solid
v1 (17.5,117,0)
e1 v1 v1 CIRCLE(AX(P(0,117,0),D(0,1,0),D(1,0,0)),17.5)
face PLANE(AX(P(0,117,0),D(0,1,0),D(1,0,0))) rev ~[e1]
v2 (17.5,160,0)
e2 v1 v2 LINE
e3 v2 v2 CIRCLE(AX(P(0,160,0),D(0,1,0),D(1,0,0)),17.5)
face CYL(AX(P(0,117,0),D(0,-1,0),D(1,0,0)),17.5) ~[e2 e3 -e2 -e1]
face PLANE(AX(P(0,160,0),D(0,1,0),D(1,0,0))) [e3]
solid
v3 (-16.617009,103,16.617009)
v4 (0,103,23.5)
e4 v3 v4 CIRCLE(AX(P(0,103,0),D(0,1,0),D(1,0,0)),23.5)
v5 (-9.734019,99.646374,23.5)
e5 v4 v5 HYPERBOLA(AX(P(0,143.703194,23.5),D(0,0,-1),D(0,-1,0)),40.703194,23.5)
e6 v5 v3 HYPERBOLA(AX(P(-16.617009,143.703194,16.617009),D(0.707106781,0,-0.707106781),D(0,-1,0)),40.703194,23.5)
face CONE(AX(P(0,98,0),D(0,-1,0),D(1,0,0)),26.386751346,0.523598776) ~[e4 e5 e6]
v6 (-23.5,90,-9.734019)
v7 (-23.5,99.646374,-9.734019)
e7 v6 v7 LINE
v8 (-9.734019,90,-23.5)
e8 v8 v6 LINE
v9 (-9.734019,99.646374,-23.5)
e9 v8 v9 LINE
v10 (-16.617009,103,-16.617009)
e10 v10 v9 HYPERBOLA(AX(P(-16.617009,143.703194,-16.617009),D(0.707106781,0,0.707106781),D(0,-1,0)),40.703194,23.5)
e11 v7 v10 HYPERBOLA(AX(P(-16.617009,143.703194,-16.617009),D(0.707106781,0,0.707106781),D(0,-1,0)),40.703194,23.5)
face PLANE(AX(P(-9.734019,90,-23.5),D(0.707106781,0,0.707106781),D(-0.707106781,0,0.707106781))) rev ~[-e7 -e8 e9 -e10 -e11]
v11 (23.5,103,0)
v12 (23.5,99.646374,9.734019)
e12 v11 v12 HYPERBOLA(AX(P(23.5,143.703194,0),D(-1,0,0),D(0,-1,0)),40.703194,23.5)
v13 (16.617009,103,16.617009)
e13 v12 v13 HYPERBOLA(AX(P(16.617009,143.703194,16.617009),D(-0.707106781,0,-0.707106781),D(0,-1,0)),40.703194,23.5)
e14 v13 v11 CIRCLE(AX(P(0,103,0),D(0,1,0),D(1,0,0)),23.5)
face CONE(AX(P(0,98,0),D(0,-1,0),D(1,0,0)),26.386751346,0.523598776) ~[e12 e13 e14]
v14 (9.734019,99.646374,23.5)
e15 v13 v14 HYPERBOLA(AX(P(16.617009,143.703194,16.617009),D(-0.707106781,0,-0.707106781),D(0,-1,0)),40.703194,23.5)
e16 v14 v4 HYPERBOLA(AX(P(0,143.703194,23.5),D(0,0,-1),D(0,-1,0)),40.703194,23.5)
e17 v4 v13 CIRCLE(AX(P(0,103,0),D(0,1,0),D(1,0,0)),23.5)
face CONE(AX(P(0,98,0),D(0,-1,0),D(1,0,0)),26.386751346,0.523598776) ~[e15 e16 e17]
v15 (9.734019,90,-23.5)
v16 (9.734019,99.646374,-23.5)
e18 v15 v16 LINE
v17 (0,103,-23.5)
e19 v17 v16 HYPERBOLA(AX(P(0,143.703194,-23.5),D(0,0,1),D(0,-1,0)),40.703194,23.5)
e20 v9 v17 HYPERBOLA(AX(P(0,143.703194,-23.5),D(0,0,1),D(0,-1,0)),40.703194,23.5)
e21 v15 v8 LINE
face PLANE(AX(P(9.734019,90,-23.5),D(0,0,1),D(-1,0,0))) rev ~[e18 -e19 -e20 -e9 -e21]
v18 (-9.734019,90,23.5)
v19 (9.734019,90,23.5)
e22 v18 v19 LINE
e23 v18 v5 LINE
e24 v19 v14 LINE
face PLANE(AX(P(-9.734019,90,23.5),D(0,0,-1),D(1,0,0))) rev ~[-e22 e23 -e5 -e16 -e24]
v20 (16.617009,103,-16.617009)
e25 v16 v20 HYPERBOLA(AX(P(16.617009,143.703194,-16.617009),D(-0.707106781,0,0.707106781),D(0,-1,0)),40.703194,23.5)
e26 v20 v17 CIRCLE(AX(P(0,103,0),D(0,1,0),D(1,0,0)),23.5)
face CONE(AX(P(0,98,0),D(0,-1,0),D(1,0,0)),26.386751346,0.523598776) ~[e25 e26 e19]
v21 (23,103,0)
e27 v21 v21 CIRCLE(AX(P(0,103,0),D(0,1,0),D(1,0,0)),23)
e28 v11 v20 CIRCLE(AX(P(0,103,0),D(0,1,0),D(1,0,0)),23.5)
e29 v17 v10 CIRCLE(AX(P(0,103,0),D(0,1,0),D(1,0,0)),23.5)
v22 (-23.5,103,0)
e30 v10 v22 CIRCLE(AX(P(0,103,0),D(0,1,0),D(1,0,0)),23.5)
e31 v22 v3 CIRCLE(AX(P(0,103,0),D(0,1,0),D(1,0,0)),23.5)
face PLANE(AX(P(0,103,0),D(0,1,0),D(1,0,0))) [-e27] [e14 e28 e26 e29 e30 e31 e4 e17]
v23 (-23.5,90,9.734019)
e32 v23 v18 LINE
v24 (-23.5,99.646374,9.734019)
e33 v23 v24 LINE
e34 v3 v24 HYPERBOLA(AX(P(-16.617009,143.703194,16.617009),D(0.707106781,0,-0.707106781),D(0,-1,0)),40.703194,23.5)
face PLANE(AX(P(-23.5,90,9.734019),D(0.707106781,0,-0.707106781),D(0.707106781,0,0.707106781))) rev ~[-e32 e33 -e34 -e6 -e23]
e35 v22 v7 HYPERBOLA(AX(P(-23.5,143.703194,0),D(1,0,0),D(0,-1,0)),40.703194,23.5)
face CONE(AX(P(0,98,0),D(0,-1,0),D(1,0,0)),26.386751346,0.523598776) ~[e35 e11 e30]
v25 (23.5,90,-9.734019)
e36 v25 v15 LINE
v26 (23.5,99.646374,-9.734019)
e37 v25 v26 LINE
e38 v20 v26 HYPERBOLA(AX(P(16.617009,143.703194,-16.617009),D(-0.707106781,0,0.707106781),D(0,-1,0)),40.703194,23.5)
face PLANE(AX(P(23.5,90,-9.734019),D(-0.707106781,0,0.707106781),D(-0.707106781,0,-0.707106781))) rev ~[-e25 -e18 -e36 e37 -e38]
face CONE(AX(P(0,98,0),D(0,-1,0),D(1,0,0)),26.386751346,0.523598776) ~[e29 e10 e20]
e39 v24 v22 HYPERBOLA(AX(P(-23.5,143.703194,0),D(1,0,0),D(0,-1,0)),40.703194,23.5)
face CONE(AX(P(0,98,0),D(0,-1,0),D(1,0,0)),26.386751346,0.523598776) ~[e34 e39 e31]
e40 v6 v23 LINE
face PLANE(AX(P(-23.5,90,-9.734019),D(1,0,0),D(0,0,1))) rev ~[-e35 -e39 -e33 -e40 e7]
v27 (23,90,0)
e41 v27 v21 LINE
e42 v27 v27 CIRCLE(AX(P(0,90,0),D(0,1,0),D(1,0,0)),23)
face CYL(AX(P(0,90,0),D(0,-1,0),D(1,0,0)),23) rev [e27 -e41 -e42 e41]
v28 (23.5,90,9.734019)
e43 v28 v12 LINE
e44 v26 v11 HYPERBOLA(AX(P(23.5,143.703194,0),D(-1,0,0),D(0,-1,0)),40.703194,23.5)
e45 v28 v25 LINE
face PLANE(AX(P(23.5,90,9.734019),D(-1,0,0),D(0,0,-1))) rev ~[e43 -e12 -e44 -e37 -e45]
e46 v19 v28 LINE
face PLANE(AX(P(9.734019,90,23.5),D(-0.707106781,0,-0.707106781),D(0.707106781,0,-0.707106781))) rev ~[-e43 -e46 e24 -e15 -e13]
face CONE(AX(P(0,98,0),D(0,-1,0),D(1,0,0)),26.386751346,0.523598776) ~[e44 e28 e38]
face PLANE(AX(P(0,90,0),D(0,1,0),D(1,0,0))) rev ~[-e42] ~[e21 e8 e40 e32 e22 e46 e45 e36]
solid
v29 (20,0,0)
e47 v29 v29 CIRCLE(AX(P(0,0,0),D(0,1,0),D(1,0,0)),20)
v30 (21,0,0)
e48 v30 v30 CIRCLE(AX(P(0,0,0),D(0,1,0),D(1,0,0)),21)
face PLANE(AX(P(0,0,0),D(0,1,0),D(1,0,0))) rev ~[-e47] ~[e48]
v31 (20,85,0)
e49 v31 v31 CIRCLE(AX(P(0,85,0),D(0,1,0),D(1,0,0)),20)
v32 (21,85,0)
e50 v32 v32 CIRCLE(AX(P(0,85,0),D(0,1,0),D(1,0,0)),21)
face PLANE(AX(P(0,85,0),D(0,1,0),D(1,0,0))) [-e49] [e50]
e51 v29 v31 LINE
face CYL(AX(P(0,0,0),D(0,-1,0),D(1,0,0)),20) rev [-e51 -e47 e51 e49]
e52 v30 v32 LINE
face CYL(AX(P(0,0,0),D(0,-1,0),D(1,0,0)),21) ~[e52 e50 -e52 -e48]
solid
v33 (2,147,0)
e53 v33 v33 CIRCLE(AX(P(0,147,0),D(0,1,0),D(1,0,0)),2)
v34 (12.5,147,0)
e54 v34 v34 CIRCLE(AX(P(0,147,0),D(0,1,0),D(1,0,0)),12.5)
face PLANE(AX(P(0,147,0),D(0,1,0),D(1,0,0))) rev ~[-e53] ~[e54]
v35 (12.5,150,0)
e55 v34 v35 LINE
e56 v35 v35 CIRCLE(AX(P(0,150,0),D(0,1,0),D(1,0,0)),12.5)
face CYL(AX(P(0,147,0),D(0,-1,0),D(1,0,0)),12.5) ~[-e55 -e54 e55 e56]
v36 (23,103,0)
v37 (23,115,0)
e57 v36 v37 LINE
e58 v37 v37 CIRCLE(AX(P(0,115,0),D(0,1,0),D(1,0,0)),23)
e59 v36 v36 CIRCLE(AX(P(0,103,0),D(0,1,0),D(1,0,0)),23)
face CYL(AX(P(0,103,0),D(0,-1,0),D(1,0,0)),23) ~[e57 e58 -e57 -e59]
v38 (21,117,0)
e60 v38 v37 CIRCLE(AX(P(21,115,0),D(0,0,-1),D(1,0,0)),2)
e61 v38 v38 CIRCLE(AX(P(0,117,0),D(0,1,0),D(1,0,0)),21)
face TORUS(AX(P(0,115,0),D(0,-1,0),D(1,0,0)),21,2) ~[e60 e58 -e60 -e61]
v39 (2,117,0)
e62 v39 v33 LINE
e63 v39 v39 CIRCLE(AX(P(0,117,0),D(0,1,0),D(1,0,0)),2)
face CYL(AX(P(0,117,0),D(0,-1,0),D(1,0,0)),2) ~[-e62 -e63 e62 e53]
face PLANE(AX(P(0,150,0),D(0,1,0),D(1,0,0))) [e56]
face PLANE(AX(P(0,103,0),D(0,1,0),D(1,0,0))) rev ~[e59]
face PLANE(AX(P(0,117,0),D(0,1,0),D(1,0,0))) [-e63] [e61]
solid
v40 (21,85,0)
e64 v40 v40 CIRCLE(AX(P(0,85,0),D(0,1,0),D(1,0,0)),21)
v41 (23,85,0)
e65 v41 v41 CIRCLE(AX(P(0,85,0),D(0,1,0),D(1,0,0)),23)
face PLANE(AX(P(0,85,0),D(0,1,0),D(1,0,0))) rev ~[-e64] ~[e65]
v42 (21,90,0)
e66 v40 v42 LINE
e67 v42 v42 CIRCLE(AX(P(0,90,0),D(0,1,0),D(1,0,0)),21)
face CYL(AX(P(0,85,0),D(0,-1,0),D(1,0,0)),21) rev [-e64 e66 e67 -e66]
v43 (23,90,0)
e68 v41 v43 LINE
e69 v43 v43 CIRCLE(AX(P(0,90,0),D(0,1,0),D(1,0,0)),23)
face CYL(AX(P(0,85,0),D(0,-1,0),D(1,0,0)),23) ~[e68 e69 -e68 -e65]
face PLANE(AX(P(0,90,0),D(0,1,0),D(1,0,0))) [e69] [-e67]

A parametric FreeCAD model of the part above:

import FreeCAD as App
import Part
import Sketcher
from FreeCAD import Vector
Q = App.Units.Quantity


def edges_at(feature, points):
    """Names of the edges that pass closest to the given points."""
    edges = feature.Shape.Edges
    near = lambda p: min(range(len(edges)), key=lambda i: edges[i].distToShape(Part.Vertex(*p))[0])
    return sorted({f"Edge{near(p) + 1}" for p in points})

doc = App.newDocument("Part")
body = doc.addObject("PartDesign::Body", "Body")

# Sketch on XZ plane
sketch1 = body.newObject("Sketcher::SketchObject", "Sketch")
sketch1.AttachmentSupport = (doc.getObject("XZ_Plane"), [""])
sketch1.MapMode = "FlatFace"
sketch1.addGeometry(Part.Circle(Vector(0, 0, 0), Vector(0, 0, 1), 21), False)
sketch1.addGeometry(Part.Circle(Vector(0, 0, 0), Vector(0, 0, 1), 20), False)
sketch1.addConstraint(Sketcher.Constraint("Coincident", 0, 3, -1, 1))
sketch1.addConstraint(Sketcher.Constraint("Coincident", 1, 3, -1, 1))
sketch1.addConstraint(Sketcher.Constraint("Diameter", 0, 42.0))
sketch1.addConstraint(Sketcher.Constraint("Diameter", 1, 40.0))
pad1 = body.newObject("PartDesign::Pad", "Pad")
pad1.Profile = sketch1
pad1.Length = 85
pad1.Reversed = True
body2 = doc.addObject("PartDesign::Body", "Body001")

# Sketch on XZ plane
sketch2 = body2.newObject("Sketcher::SketchObject", "Sketch001")
sketch2.AttachmentSupport = (doc.getObject("XZ_Plane001"), [""])
sketch2.MapMode = "FlatFace"
sketch2.AttachmentOffset = App.Placement(Vector(0, 0, -85), App.Rotation())
sketch2.addGeometry(Part.Circle(Vector(0, 0, 0), Vector(0, 0, 1), 23), False)
sketch2.addGeometry(Part.Circle(Vector(0, 0, 0), Vector(0, 0, 1), 21), False)
sketch2.addConstraint(Sketcher.Constraint("Coincident", 0, 3, -1, 1))
sketch2.addConstraint(Sketcher.Constraint("Coincident", 1, 3, -1, 1))
sketch2.addConstraint(Sketcher.Constraint("Diameter", 0, 46.0))
sketch2.addConstraint(Sketcher.Constraint("Diameter", 1, 42.0))
pad2 = body2.newObject("PartDesign::Pad", "Pad001")
pad2.Profile = sketch2
pad2.Length = 5
pad2.Reversed = True
body3 = doc.addObject("PartDesign::Body", "Body002")

# Sketch on XZ plane
sketch3 = body3.newObject("Sketcher::SketchObject", "Sketch002")
sketch3.AttachmentSupport = (doc.getObject("XZ_Plane002"), [""])
sketch3.MapMode = "FlatFace"
sketch3.AttachmentOffset = App.Placement(Vector(0, 0, -90), App.Rotation())
sketch3.addGeometry(Part.LineSegment(Vector(-24, 10, 0), Vector(-10, 24, 0)), False)
sketch3.addGeometry(Part.LineSegment(Vector(-10, 24, 0), Vector(10, 24, 0)), False)
sketch3.addGeometry(Part.LineSegment(Vector(10, 24, 0), Vector(24, 10, 0)), False)
sketch3.addGeometry(Part.LineSegment(Vector(24, 10, 0), Vector(24, -10, 0)), False)
sketch3.addGeometry(Part.LineSegment(Vector(24, -10, 0), Vector(10, -24, 0)), False)
sketch3.addGeometry(Part.LineSegment(Vector(10, -24, 0), Vector(-10, -24, 0)), False)
sketch3.addGeometry(Part.LineSegment(Vector(-10, -24, 0), Vector(-24, -10, 0)), False)
sketch3.addGeometry(Part.LineSegment(Vector(-24, -10, 0), Vector(-24, 10, 0)), False)
sketch3.addGeometry(Part.Circle(Vector(0, 0, 0), Vector(0, 0, 1), 23), False)
sketch3.addConstraint(Sketcher.Constraint("Coincident", 0, 2, 1, 1))
sketch3.addConstraint(Sketcher.Constraint("Coincident", 1, 2, 2, 1))
sketch3.addConstraint(Sketcher.Constraint("Coincident", 2, 2, 3, 1))
sketch3.addConstraint(Sketcher.Constraint("Coincident", 3, 2, 4, 1))
sketch3.addConstraint(Sketcher.Constraint("Coincident", 4, 2, 5, 1))
sketch3.addConstraint(Sketcher.Constraint("Coincident", 5, 2, 6, 1))
sketch3.addConstraint(Sketcher.Constraint("Coincident", 6, 2, 7, 1))
sketch3.addConstraint(Sketcher.Constraint("Coincident", 7, 2, 0, 1))
sketch3.addConstraint(Sketcher.Constraint("Horizontal", 1))
sketch3.addConstraint(Sketcher.Constraint("Vertical", 3))
sketch3.addConstraint(Sketcher.Constraint("Horizontal", 5))
sketch3.addConstraint(Sketcher.Constraint("Vertical", 7))
sketch3.addConstraint(Sketcher.Constraint("Coincident", 8, 3, -1, 1))
sketch3.addConstraint(Sketcher.Constraint("Symmetric", 0, 2, 4, 2, -1, 1))
sketch3.addConstraint(Sketcher.Constraint("Symmetric", 2, 2, 6, 2, -1, 1))
sketch3.addConstraint(Sketcher.Constraint("Perpendicular", 0, 2))
sketch3.addConstraint(Sketcher.Constraint("Perpendicular", 2, 4))
sketch3.addConstraint(Sketcher.Constraint("Perpendicular", 4, 6))
sketch3.addConstraint(Sketcher.Constraint("Horizontal", 3, 2, 6, 2))
sketch3.addConstraint(Sketcher.Constraint("Vertical", 1, 2, 4, 2))
sketch3.addConstraint(Sketcher.Constraint("Equal", 5, 3))
sketch3.addConstraint(Sketcher.Constraint("Diameter", 8, 46.0))
sketch3.addConstraint(Sketcher.Constraint("DistanceY", 4, 2, 1, 2, 47.0))
sketch3.addConstraint(Sketcher.Constraint("DistanceX", 1, 1, 1, 2, 19.468037))
pad3 = body3.newObject("PartDesign::Pad", "Pad002")
pad3.Profile = sketch3
pad3.Length = 13
pad3.Reversed = True

# Sketch on XY plane
sketch4 = body3.newObject("Sketcher::SketchObject", "Sketch003")
sketch4.AttachmentSupport = (doc.getObject("XY_Plane002"), [""])
sketch4.MapMode = "FlatFace"
sketch4.addGeometry(Part.LineSegment(Vector(26.4, 98, 0), Vector(26.4, 103, 0)), False)
sketch4.addGeometry(Part.LineSegment(Vector(26.4, 103, 0), Vector(23.5, 103, 0)), False)
sketch4.addGeometry(Part.LineSegment(Vector(23.5, 103, 0), Vector(26.4, 98, 0)), False)
sketch4.addConstraint(Sketcher.Constraint("Coincident", 0, 2, 1, 1))
sketch4.addConstraint(Sketcher.Constraint("Coincident", 1, 2, 2, 1))
sketch4.addConstraint(Sketcher.Constraint("Coincident", 2, 2, 0, 1))
sketch4.addConstraint(Sketcher.Constraint("Vertical", 0))
sketch4.addConstraint(Sketcher.Constraint("Horizontal", 1))
sketch4.addConstraint(Sketcher.Constraint("DistanceY", 0, 1, 0, 2, 5.0))
sketch4.addConstraint(Sketcher.Constraint("Angle", 2, Q("-60 deg")))
sketch4.addConstraint(Sketcher.Constraint("DistanceY", -1, 1, 0, 2, 103.0))
sketch4.addConstraint(Sketcher.Constraint("DistanceX", -1, 1, 1, 2, 23.5))

# Sketch on XZ plane
sketch5 = body3.newObject("Sketcher::SketchObject", "Sketch004")
sketch5.AttachmentSupport = (doc.getObject("XZ_Plane002"), [""])
sketch5.MapMode = "FlatFace"
sketch5.AttachmentOffset = App.Placement(Vector(0, 0, -103), App.Rotation())
sketch5.addGeometry(Part.Circle(Vector(0, 0, 0), Vector(0, 0, 1), 30), False)
sketch5.addConstraint(Sketcher.Constraint("Coincident", 0, 3, -1, 1))
sketch5.addConstraint(Sketcher.Constraint("Diameter", 0, 60.0))
doc.recompute()

subtractivepipe = body3.newObject("PartDesign::SubtractivePipe", "SubtractivePipe")
subtractivepipe.Profile = sketch4
subtractivepipe.Spine = (sketch5, ["Edge1"])
body4 = doc.addObject("PartDesign::Body", "Body003")

# Sketch on XZ plane
sketch6 = body4.newObject("Sketcher::SketchObject", "Sketch005")
sketch6.AttachmentSupport = (doc.getObject("XZ_Plane003"), [""])
sketch6.MapMode = "FlatFace"
sketch6.AttachmentOffset = App.Placement(Vector(0, 0, -103), App.Rotation())
sketch6.addGeometry(Part.Circle(Vector(0, 0, 0), Vector(0, 0, 1), 23), False)
sketch6.addConstraint(Sketcher.Constraint("Coincident", 0, 3, -1, 1))
sketch6.addConstraint(Sketcher.Constraint("Diameter", 0, 46.0))
pad4 = body4.newObject("PartDesign::Pad", "Pad003")
pad4.Profile = sketch6
pad4.Length = 14
pad4.Reversed = True

# Sketch on XZ plane
sketch7 = body4.newObject("Sketcher::SketchObject", "Sketch006")
sketch7.AttachmentSupport = (doc.getObject("XZ_Plane003"), [""])
sketch7.MapMode = "FlatFace"
sketch7.AttachmentOffset = App.Placement(Vector(0, 0, -117), App.Rotation())
sketch7.addGeometry(Part.Circle(Vector(0, 0, 0), Vector(0, 0, 1), 2), False)
sketch7.addConstraint(Sketcher.Constraint("Coincident", 0, 3, -1, 1))
sketch7.addConstraint(Sketcher.Constraint("Diameter", 0, 4.0))
pad5 = body4.newObject("PartDesign::Pad", "Pad004")
pad5.Profile = sketch7
pad5.Length = 30
pad5.Reversed = True

# Sketch on XZ plane
sketch8 = body4.newObject("Sketcher::SketchObject", "Sketch007")
sketch8.AttachmentSupport = (doc.getObject("XZ_Plane003"), [""])
sketch8.MapMode = "FlatFace"
sketch8.AttachmentOffset = App.Placement(Vector(0, 0, -147), App.Rotation())
sketch8.addGeometry(Part.Circle(Vector(0, 0, 0), Vector(0, 0, 1), 12), False)
sketch8.addConstraint(Sketcher.Constraint("Coincident", 0, 3, -1, 1))
sketch8.addConstraint(Sketcher.Constraint("Diameter", 0, 25.0))
pad6 = body4.newObject("PartDesign::Pad", "Pad005")
pad6.Profile = sketch8
pad6.Length = 3
pad6.Reversed = True
doc.recompute()

fillet = body4.newObject("PartDesign::Fillet", "Fillet")
fillet.Base = (pad6, edges_at(pad6, [(-23, 117, 0)]))
fillet.Radius = 2
body5 = doc.addObject("PartDesign::Body", "Body004")

# Sketch on XZ plane
sketch9 = body5.newObject("Sketcher::SketchObject", "Sketch008")
sketch9.AttachmentSupport = (doc.getObject("XZ_Plane004"), [""])
sketch9.MapMode = "FlatFace"
sketch9.AttachmentOffset = App.Placement(Vector(0, 0, -117), App.Rotation())
sketch9.addGeometry(Part.Circle(Vector(0, 0, 0), Vector(0, 0, 1), 18), False)
sketch9.addConstraint(Sketcher.Constraint("Coincident", 0, 3, -1, 1))
sketch9.addConstraint(Sketcher.Constraint("Diameter", 0, 35.0))
pad7 = body5.newObject("PartDesign::Pad", "Pad006")
pad7.Profile = sketch9
pad7.Length = 43
pad7.Reversed = True

doc.recompute()
